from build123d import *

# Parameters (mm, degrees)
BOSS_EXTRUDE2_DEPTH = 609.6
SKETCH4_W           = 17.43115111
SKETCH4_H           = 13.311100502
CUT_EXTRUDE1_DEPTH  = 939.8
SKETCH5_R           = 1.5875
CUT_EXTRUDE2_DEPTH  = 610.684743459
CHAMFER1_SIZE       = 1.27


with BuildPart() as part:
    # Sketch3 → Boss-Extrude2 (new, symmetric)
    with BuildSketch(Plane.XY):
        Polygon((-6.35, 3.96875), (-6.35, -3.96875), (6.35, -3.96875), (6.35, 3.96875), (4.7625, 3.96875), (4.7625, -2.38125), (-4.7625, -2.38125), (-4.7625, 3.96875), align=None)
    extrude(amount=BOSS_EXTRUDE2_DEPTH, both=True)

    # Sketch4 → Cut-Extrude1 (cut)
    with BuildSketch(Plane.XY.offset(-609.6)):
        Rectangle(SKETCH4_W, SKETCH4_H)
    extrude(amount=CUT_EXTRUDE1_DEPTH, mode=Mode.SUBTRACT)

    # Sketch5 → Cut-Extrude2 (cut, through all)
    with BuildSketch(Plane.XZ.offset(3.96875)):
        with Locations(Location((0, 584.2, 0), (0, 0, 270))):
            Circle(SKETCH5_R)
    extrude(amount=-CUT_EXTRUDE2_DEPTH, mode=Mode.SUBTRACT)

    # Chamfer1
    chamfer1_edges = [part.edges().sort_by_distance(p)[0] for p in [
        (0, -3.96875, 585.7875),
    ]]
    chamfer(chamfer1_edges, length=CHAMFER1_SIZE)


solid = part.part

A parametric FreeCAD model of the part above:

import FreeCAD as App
import Part
import Sketcher
Q = App.Units.Quantity


def edges_at(feature, points):
    """Names of the edges that pass closest to the given points."""
    edges = feature.Shape.Edges
    near = lambda p: min(range(len(edges)), key=lambda i: edges[i].distToShape(Part.Vertex(*p))[0])
    return sorted({f"Edge{near(p) + 1}" for p in points})

doc = App.newDocument("Part")
params = doc.addObject("Spreadsheet::Sheet", "Params")
for row, (alias, value) in enumerate([
    ("sketch1_width", "0.5 in"),
    ("sketch1_height", "0.25 in"),
    ("sketch1_width2", "0.0625 in"),
    ("sketch1_height2", "0.3125 in"),
    ("pad1_length", "48 in"),
    ("pocket1_length", "37 in"),
    ("sketch3_diameter", "0.125 in"),
    ("chamfer_size", "0.05 in"),
], start=1):
    params.set(f"A{row}", alias)
    params.set(f"B{row}", "=" + value)
    params.setAlias(f"B{row}", alias)

body = doc.addObject("PartDesign::Body", "Body")

# Sketch on XY plane
sketch1 = body.newObject("Sketcher::SketchObject", "Sketch")
sketch1.AttachmentSupport = (doc.getObject("XY_Plane"), [""])
sketch1.MapMode = "FlatFace"
sketch1.addGeometry([
    Part.LineSegment(App.Vector(-6.3, 4, 0), App.Vector(-6.3, -4, 0)),  # 0
    Part.LineSegment(App.Vector(-6.3, -4, 0), App.Vector(6.3, -4, 0)),  # 1
    Part.LineSegment(App.Vector(6.3, -4, 0), App.Vector(6.3, 4, 0)),  # 2
    Part.LineSegment(App.Vector(6.3, 4, 0), App.Vector(4.8, 4, 0)),  # 3
    Part.LineSegment(App.Vector(4.8, 4, 0), App.Vector(4.8, -2.4, 0)),  # 4
    Part.LineSegment(App.Vector(4.8, -2.4, 0), App.Vector(-4.8, -2.4, 0)),  # 5
    Part.LineSegment(App.Vector(-4.8, -2.4, 0), App.Vector(-4.8, 4, 0)),  # 6
    Part.LineSegment(App.Vector(-4.8, 4, 0), App.Vector(-6.3, 4, 0)),  # 7
], False)
sketch1.addConstraint([
    Sketcher.Constraint("Coincident", 0, 2, 1, 1),
    Sketcher.Constraint("Coincident", 1, 2, 2, 1),
    Sketcher.Constraint("Coincident", 2, 2, 3, 1),
    Sketcher.Constraint("Coincident", 3, 2, 4, 1),
    Sketcher.Constraint("Coincident", 4, 2, 5, 1),
    Sketcher.Constraint("Coincident", 5, 2, 6, 1),
    Sketcher.Constraint("Coincident", 6, 2, 7, 1),
    Sketcher.Constraint("Coincident", 7, 2, 0, 1),
    Sketcher.Constraint("Vertical", 0),
    Sketcher.Constraint("Horizontal", 1),
    Sketcher.Constraint("Vertical", 2),
    Sketcher.Constraint("Horizontal", 3),
    Sketcher.Constraint("Vertical", 4),
    Sketcher.Constraint("Horizontal", 5),
    Sketcher.Constraint("Vertical", 6),
    Sketcher.Constraint("Horizontal", 7),
    Sketcher.Constraint("Symmetric", 0, 2, 2, 2, -1, 1),
    Sketcher.Constraint("Symmetric", 3, 2, 6, 2, -2),
    Sketcher.Constraint("DistanceX", 1, 1, 1, 2, Q("0.5 in")),
    Sketcher.Constraint("DistanceY", 4, 2, 4, 1, Q("0.25 in")),
    Sketcher.Constraint("DistanceX", 3, 2, 3, 1, Q("0.0625 in")),
    Sketcher.Constraint("DistanceY", 0, 2, 0, 1, Q("0.3125 in")),
])
sketch1.setExpression("Constraints[18]", "Params.sketch1_width")
sketch1.setExpression("Constraints[19]", "Params.sketch1_height")
sketch1.setExpression("Constraints[20]", "Params.sketch1_width2")
sketch1.setExpression("Constraints[21]", "Params.sketch1_height2")
pad1 = body.newObject("PartDesign::Pad", "Pad")
pad1.Profile = sketch1
pad1.setExpression("Length", "Params.pad1_length")
pad1.Midplane = True

# Sketch on XY plane
sketch2 = body.newObject("Sketcher::SketchObject", "Sketch001")
sketch2.AttachmentSupport = (doc.getObject("XY_Plane"), [""])
sketch2.MapMode = "FlatFace"
sketch2.AttachmentOffset = App.Placement(App.Vector(0, 0, -24 * 25.4), App.Rotation())
sketch2.addGeometry([
    Part.LineSegment(App.Vector(-9, 7, 0), App.Vector(-9, -7, 0)),
    Part.LineSegment(App.Vector(-9, -7, 0), App.Vector(9, -7, 0)),
    Part.LineSegment(App.Vector(9, -7, 0), App.Vector(9, 7, 0)),
    Part.LineSegment(App.Vector(9, 7, 0), App.Vector(-9, 7, 0)),
], False)
sketch2.addConstraint([
    Sketcher.Constraint("Coincident", 0, 2, 1, 1),
    Sketcher.Constraint("Coincident", 1, 2, 2, 1),
    Sketcher.Constraint("Coincident", 2, 2, 3, 1),
    Sketcher.Constraint("Coincident", 3, 2, 0, 1),
    Sketcher.Constraint("Vertical", 0),
    Sketcher.Constraint("Horizontal", 1),
    Sketcher.Constraint("Vertical", 2),
    Sketcher.Constraint("Horizontal", 3),
    Sketcher.Constraint("Symmetric", 0, 2, 2, 2, -1, 1),
    Sketcher.Constraint("DistanceY", 0, 2, 0, 1, 13.311101),
    Sketcher.Constraint("DistanceX", 1, 1, 1, 2, 17.431151),
])
pocket1 = body.newObject("PartDesign::Pocket", "Pocket")
pocket1.Profile = sketch2
pocket1.setExpression("Length", "Params.pocket1_length")
pocket1.Reversed = True

# Sketch on XZ plane
sketch3 = body.newObject("Sketcher::SketchObject", "Sketch002")
sketch3.AttachmentSupport = (doc.getObject("XZ_Plane"), [""])
sketch3.MapMode = "FlatFace"
sketch3.AttachmentOffset = App.Placement(App.Vector(0, 0, 0.15625 * 25.4), App.Rotation())
sketch3.addGeometry(Part.Circle(App.Vector(0, 584.2, 0), App.Vector(0, 0, 1), 1.6), False)
sketch3.addConstraint([
    Sketcher.Constraint("PointOnObject", 0, 3, -2),
    Sketcher.Constraint("Diameter", 0, Q("0.125 in")),
    Sketcher.Constraint("DistanceY", -1, 1, 0, 3, Q("23 in")),
])
sketch3.setExpression("Constraints[1]", "Params.sketch3_diameter")
pocket2 = body.newObject("PartDesign::Pocket", "Pocket001")
pocket2.Profile = sketch3
pocket2.Type = "ThroughAll"
doc.recompute()

chamfer = body.newObject("PartDesign::Chamfer", "Chamfer")
chamfer.Base = (pocket2, edges_at(pocket2, [(0, -3.969, 585.788)]))
chamfer.setExpression("Size", "Params.chamfer_size")

doc.recompute()
